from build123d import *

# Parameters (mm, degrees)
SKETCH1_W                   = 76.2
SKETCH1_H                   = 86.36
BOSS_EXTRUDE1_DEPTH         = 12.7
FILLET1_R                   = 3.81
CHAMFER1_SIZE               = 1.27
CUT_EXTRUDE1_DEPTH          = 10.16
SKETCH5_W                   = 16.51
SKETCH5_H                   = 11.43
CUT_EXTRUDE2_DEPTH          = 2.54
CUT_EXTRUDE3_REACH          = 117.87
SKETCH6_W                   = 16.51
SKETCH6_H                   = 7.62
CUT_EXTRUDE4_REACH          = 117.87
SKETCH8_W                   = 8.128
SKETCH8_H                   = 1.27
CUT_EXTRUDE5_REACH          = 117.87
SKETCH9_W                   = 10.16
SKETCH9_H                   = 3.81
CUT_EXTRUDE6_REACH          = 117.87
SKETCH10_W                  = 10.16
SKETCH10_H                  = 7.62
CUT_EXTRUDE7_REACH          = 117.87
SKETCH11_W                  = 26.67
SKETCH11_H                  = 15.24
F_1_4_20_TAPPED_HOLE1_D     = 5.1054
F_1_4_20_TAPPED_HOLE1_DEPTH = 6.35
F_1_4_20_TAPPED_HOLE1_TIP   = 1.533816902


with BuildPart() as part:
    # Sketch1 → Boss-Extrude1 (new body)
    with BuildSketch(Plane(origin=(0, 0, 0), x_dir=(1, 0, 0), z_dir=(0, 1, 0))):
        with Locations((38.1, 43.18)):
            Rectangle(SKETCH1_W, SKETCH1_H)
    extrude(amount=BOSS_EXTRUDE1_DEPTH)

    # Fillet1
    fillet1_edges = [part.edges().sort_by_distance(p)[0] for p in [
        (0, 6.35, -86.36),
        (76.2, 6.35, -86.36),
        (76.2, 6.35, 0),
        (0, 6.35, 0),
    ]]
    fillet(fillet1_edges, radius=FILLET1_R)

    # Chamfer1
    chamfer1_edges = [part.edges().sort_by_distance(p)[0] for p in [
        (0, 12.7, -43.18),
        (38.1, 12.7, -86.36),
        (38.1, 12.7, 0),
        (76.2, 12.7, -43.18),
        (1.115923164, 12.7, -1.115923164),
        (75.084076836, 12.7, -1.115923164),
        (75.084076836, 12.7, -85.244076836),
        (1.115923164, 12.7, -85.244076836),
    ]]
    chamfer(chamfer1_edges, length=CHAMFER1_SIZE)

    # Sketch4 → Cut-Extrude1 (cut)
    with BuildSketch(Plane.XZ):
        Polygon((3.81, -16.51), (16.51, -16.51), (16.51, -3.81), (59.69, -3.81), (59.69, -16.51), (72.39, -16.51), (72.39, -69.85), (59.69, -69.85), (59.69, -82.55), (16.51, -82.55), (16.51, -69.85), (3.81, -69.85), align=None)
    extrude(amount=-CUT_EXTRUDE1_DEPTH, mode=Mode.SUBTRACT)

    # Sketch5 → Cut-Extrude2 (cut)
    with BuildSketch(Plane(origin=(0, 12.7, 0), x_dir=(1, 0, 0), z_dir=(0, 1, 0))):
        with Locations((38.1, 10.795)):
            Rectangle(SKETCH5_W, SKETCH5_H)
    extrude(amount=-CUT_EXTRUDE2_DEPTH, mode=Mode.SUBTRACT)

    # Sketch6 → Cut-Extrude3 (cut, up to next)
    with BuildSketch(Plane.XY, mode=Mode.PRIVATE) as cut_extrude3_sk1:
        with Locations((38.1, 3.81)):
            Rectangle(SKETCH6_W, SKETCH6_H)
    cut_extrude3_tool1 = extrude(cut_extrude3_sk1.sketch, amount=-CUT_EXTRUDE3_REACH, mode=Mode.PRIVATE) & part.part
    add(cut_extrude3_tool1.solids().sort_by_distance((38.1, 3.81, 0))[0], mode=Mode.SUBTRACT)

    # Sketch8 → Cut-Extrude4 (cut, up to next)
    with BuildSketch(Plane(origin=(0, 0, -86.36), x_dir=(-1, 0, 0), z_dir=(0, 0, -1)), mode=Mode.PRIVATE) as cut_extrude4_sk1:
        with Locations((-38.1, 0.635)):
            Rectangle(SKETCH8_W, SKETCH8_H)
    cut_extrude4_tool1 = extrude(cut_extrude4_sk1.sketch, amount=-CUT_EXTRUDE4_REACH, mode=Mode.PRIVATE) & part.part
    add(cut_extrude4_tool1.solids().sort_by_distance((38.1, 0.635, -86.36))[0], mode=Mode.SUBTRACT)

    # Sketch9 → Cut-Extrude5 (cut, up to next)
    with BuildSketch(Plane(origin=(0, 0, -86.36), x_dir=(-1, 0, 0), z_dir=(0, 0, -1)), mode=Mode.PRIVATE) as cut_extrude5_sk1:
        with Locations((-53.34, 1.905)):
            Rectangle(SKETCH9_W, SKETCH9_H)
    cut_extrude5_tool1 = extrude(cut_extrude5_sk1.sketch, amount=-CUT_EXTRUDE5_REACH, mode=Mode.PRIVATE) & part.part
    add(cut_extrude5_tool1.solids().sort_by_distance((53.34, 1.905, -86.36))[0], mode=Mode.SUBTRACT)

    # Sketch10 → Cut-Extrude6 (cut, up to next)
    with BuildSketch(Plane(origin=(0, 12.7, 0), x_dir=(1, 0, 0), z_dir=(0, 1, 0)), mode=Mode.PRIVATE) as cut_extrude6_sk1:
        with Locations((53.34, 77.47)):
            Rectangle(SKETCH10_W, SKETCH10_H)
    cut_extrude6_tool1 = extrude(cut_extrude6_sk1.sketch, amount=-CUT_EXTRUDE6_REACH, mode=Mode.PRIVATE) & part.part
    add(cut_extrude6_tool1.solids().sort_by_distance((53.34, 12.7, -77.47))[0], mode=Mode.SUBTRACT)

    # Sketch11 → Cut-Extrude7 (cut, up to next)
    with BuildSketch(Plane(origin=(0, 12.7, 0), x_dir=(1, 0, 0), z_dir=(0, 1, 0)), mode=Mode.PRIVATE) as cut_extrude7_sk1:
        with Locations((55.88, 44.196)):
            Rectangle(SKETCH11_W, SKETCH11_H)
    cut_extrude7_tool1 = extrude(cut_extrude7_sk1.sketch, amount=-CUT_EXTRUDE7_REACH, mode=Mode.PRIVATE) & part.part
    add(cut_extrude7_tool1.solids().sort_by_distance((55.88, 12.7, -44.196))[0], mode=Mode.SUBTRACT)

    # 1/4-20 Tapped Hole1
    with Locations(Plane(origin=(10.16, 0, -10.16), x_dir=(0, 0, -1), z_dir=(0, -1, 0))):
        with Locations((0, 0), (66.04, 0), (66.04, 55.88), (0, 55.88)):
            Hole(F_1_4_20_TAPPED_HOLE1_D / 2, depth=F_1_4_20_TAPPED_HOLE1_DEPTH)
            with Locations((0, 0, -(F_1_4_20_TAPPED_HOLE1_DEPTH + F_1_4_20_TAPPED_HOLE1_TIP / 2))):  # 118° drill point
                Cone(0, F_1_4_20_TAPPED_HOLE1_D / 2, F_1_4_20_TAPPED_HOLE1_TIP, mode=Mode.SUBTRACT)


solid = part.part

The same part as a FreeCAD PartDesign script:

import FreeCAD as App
import Part
import Sketcher
Q = App.Units.Quantity


def edges_at(feature, points):
    """Names of the edges that pass closest to the given points."""
    edges = feature.Shape.Edges
    near = lambda p: min(range(len(edges)), key=lambda i: edges[i].distToShape(Part.Vertex(*p))[0])
    return sorted({f"Edge{near(p) + 1}" for p in points})


def add_polygon(sketch, points):
    """Adds a closed chain of lines whose ends are joined by coincident constraints."""
    first, n = sketch.GeometryCount, len(points)
    for a, b in zip(points, points[1:] + points[:1]):
        sketch.addGeometry(Part.LineSegment(App.Vector(*a, 0), App.Vector(*b, 0)), False)
    for i in range(n):
        sketch.addConstraint(Sketcher.Constraint("Coincident", first + i, 2, first + (i + 1) % n, 1))

doc = App.newDocument("Part")
params = doc.addObject("Spreadsheet::Sheet", "Params")
for row, (alias, value) in enumerate([
    ("sketch1_width", "3 in"),
    ("sketch1_height", "3.4 in"),
    ("pad1_length", "0.5 in"),
    ("fillet_radius", "0.15 in"),
    ("chamfer_size", "0.05 in"),
    ("sketch2_width", "0.5 in"),
    ("sketch2_width2", "1.7 in"),
    ("sketch2_height", "2.1 in"),
    ("pocket1_length", "0.4 in"),
    ("sketch3_width", "0.65 in"),
    ("sketch3_height", "0.45 in"),
    ("pocket2_length", "0.1 in"),
    ("sketch4_height", "0.3 in"),
    ("sketch4_width", "0.65 in"),
    ("sketch5_width", "0.32 in"),
    ("sketch5_height", "0.05 in"),
    ("sketch6_width", "0.4 in"),
    ("sketch6_height", "0.15 in"),
    ("sketch7_width", "0.4 in"),
    ("sketch7_height", "0.3 in"),
    ("sketch8_height", "0.6 in"),
    ("sketch8_width", "1.05 in"),
    ("sketch9_diameter", "0.201 in"),
    ("hole_diameter", "0.201 in"),
    ("hole_depth", "0.25 in"),
], start=1):
    params.set(f"A{row}", alias)
    params.set(f"B{row}", "=" + value)
    params.setAlias(f"B{row}", alias)

body = doc.addObject("PartDesign::Body", "Body")

# Sketch on XZ plane
sketch1 = body.newObject("Sketcher::SketchObject", "Sketch")
sketch1.AttachmentSupport = (doc.getObject("XZ_Plane"), [""])
sketch1.MapMode = "FlatFace"
add_polygon(sketch1, [(0, -86), (0, 0), (76, 0), (76, -86)])  # lines 0-3
sketch1.addConstraint([
    Sketcher.Constraint("Vertical", 0),
    Sketcher.Constraint("Horizontal", 1),
    Sketcher.Constraint("Vertical", 2),
    Sketcher.Constraint("Horizontal", 3),
    Sketcher.Constraint("Coincident", 0, 2, -1, 1),
    Sketcher.Constraint("DistanceX", 1, 1, 1, 2, Q("3 in")),
    Sketcher.Constraint("DistanceY", 0, 1, 0, 2, Q("3.4 in")),
])
sketch1.setExpression("Constraints[9]", "Params.sketch1_width")
sketch1.setExpression("Constraints[10]", "Params.sketch1_height")
pad1 = body.newObject("PartDesign::Pad", "Pad")
pad1.Profile = sketch1
pad1.setExpression("Length", "Params.pad1_length")
pad1.Reversed = True
doc.recompute()

fillet = body.newObject("PartDesign::Fillet", "Fillet")
fillet.Base = (pad1, edges_at(pad1, [
    (0, 6.35, -86.36),
    (76.2, 6.35, -86.36),
    (76.2, 6.35, 0),
    (0, 6.35, 0),
]))
fillet.setExpression("Radius", "Params.fillet_radius")
doc.recompute()

chamfer = body.newObject("PartDesign::Chamfer", "Chamfer")
chamfer.Base = (fillet, edges_at(fillet, [
    (0, 12.7, -43.18),
    (38.1, 12.7, -86.36),
    (38.1, 12.7, 0),
    (76.2, 12.7, -43.18),
    (1.116, 12.7, -1.116),
    (75.084, 12.7, -1.116),
    (75.084, 12.7, -85.244),
    (1.116, 12.7, -85.244),
]))
chamfer.setExpression("Size", "Params.chamfer_size")

# Sketch on XZ plane
sketch2 = body.newObject("Sketcher::SketchObject", "Sketch001")
sketch2.AttachmentSupport = (doc.getObject("XZ_Plane"), [""])
sketch2.MapMode = "FlatFace"
add_polygon(sketch2, [(17, -17), (4, -17), (4, -70), (17, -70), (17, -83), (60, -83), (60, -70), (72, -70), (72, -17), (60, -17), (60, -4), (17, -4)])  # lines 0-11
sketch2.addConstraint([
    Sketcher.Constraint("Horizontal", 0),
    Sketcher.Constraint("Vertical", 1),
    Sketcher.Constraint("Horizontal", 2),
    Sketcher.Constraint("Vertical", 3),
    Sketcher.Constraint("Horizontal", 4),
    Sketcher.Constraint("Vertical", 5),
    Sketcher.Constraint("Horizontal", 6),
    Sketcher.Constraint("Vertical", 7),
    Sketcher.Constraint("Horizontal", 8),
    Sketcher.Constraint("Vertical", 9),
    Sketcher.Constraint("Horizontal", 10),
    Sketcher.Constraint("Vertical", 11),
    Sketcher.Constraint("Horizontal", 2, 2, 5, 2),
    Sketcher.Constraint("Horizontal", 0, 2, 7, 2),
    Sketcher.Constraint("Vertical", 5, 2, 8, 2),
    Sketcher.Constraint("Vertical", 3, 2, 10, 2),
    Sketcher.Constraint("Equal", 2, 6),
    Sketcher.Constraint("Equal", 8, 3),
    Sketcher.Constraint("Equal", 5, 9),
    Sketcher.Constraint("DistanceX", 0, 2, 0, 1, Q("0.5 in")),
    Sketcher.Constraint("DistanceX", 4, 1, 4, 2, Q("1.7 in")),
    Sketcher.Constraint("DistanceY", 1, 2, 1, 1, Q("2.1 in")),
    Sketcher.Constraint("DistanceX", -1, 1, 0, 2, Q("0.15 in")),
    Sketcher.Constraint("DistanceY", 0, 2, -1, 1, Q("0.65 in")),
])
sketch2.setExpression("Constraints[31]", "Params.sketch2_width")
sketch2.setExpression("Constraints[32]", "Params.sketch2_width2")
sketch2.setExpression("Constraints[33]", "Params.sketch2_height")
pocket1 = body.newObject("PartDesign::Pocket", "Pocket")
pocket1.Profile = sketch2
pocket1.setExpression("Length", "Params.pocket1_length")

# Sketch on XZ plane
sketch3 = body.newObject("Sketcher::SketchObject", "Sketch002")
sketch3.AttachmentSupport = (doc.getObject("XZ_Plane"), [""])
sketch3.MapMode = "FlatFace"
sketch3.AttachmentOffset = App.Placement(App.Vector(0, 0, -0.5 * 25.4), App.Rotation())
add_polygon(sketch3, [(30, -17), (30, -5), (46, -5), (46, -17)])  # lines 0-3
sketch3.addConstraint([
    Sketcher.Constraint("Vertical", 0),
    Sketcher.Constraint("Horizontal", 1),
    Sketcher.Constraint("Vertical", 2),
    Sketcher.Constraint("Horizontal", 3),
    Sketcher.Constraint("DistanceX", 1, 1, 1, 2, Q("0.65 in")),
    Sketcher.Constraint("DistanceY", 0, 1, 0, 2, Q("0.45 in")),
    Sketcher.Constraint("DistanceY", 0, 2, -1, 1, Q("0.2 in")),
    Sketcher.Constraint("DistanceX", -1, 1, 0, 2, Q("1.175 in")),
])
sketch3.setExpression("Constraints[8]", "Params.sketch3_width")
sketch3.setExpression("Constraints[9]", "Params.sketch3_height")
pocket2 = body.newObject("PartDesign::Pocket", "Pocket001")
pocket2.Profile = sketch3
pocket2.setExpression("Length", "Params.pocket2_length")
pocket2.Reversed = True

# Sketch on XY plane
sketch4 = body.newObject("Sketcher::SketchObject", "Sketch003")
sketch4.AttachmentSupport = (doc.getObject("XY_Plane"), [""])
sketch4.MapMode = "FlatFace"
add_polygon(sketch4, [(30, 8), (30, 0), (46, 0), (46, 8)])  # lines 0-3
sketch4.addConstraint([
    Sketcher.Constraint("Vertical", 0),
    Sketcher.Constraint("Horizontal", 1),
    Sketcher.Constraint("Vertical", 2),
    Sketcher.Constraint("Horizontal", 3),
    Sketcher.Constraint("PointOnObject", 0, 2, -1),
    Sketcher.Constraint("DistanceY", 0, 2, 0, 1, Q("0.3 in")),
    Sketcher.Constraint("DistanceX", 1, 1, 1, 2, Q("0.65 in")),
    Sketcher.Constraint("DistanceX", -1, 1, 0, 2, Q("1.175 in")),
])
sketch4.setExpression("Constraints[9]", "Params.sketch4_height")
sketch4.setExpression("Constraints[10]", "Params.sketch4_width")
pocket3 = body.newObject("PartDesign::Pocket", "Pocket002")
pocket3.Profile = sketch4
pocket3.Type = "UpToFirst"

# Sketch on XY plane
sketch5 = body.newObject("Sketcher::SketchObject", "Sketch004")
sketch5.AttachmentSupport = (doc.getObject("XY_Plane"), [""])
sketch5.MapMode = "FlatFace"
sketch5.AttachmentOffset = App.Placement(App.Vector(0, 0, -3.4 * 25.4), App.Rotation())
add_polygon(sketch5, [(42.2, 1.3), (42.2, 0), (34, 0), (34, 1.3)])  # lines 0-3
sketch5.addConstraint([
    Sketcher.Constraint("Vertical", 0),
    Sketcher.Constraint("Horizontal", 1),
    Sketcher.Constraint("Vertical", 2),
    Sketcher.Constraint("Horizontal", 3),
    Sketcher.Constraint("PointOnObject", 0, 2, -1),
    Sketcher.Constraint("DistanceX", 1, 2, 1, 1, Q("0.32 in")),
    Sketcher.Constraint("DistanceY", 0, 2, 0, 1, Q("0.05 in")),
    Sketcher.Constraint("DistanceX", -1, 1, 0, 2, Q("1.66 in")),
])
sketch5.setExpression("Constraints[9]", "Params.sketch5_width")
sketch5.setExpression("Constraints[10]", "Params.sketch5_height")
pocket4 = body.newObject("PartDesign::Pocket", "Pocket003")
pocket4.Profile = sketch5
pocket4.Type = "UpToFirst"
pocket4.Reversed = True

# Sketch on XY plane
sketch6 = body.newObject("Sketcher::SketchObject", "Sketch005")
sketch6.AttachmentSupport = (doc.getObject("XY_Plane"), [""])
sketch6.MapMode = "FlatFace"
sketch6.AttachmentOffset = App.Placement(App.Vector(0, 0, -3.4 * 25.4), App.Rotation())
add_polygon(sketch6, [(58.4, 3.8), (58.4, 0), (48.3, 0), (48.3, 3.8)])  # lines 0-3
sketch6.addConstraint([
    Sketcher.Constraint("Vertical", 0),
    Sketcher.Constraint("Horizontal", 1),
    Sketcher.Constraint("Vertical", 2),
    Sketcher.Constraint("Horizontal", 3),
    Sketcher.Constraint("PointOnObject", 0, 2, -1),
    Sketcher.Constraint("DistanceX", 1, 2, 1, 1, Q("0.4 in")),
    Sketcher.Constraint("DistanceY", 0, 2, 0, 1, Q("0.15 in")),
    Sketcher.Constraint("DistanceX", -1, 1, 0, 2, Q("2.3 in")),
])
sketch6.setExpression("Constraints[9]", "Params.sketch6_width")
sketch6.setExpression("Constraints[10]", "Params.sketch6_height")
pocket5 = body.newObject("PartDesign::Pocket", "Pocket004")
pocket5.Profile = sketch6
pocket5.Type = "UpToFirst"
pocket5.Reversed = True

# Sketch on XZ plane
sketch7 = body.newObject("Sketcher::SketchObject", "Sketch006")
sketch7.AttachmentSupport = (doc.getObject("XZ_Plane"), [""])
sketch7.MapMode = "FlatFace"
sketch7.AttachmentOffset = App.Placement(App.Vector(0, 0, -0.5 * 25.4), App.Rotation())
add_polygon(sketch7, [(48, -81), (48, -74), (58, -74), (58, -81)])  # lines 0-3
sketch7.addConstraint([
    Sketcher.Constraint("Vertical", 0),
    Sketcher.Constraint("Horizontal", 1),
    Sketcher.Constraint("Vertical", 2),
    Sketcher.Constraint("Horizontal", 3),
    Sketcher.Constraint("DistanceX", 1, 1, 1, 2, Q("0.4 in")),
    Sketcher.Constraint("DistanceY", 0, 1, 0, 2, Q("0.3 in")),
    Sketcher.Constraint("DistanceX", -1, 1, 0, 2, Q("1.9 in")),
    Sketcher.Constraint("DistanceY", 0, 2, -1, 1, Q("2.9 in")),
])
sketch7.setExpression("Constraints[8]", "Params.sketch7_width")
sketch7.setExpression("Constraints[9]", "Params.sketch7_height")
pocket6 = body.newObject("PartDesign::Pocket", "Pocket005")
pocket6.Profile = sketch7
pocket6.Type = "UpToFirst"
pocket6.Reversed = True

# Sketch on XZ plane
sketch8 = body.newObject("Sketcher::SketchObject", "Sketch007")
sketch8.AttachmentSupport = (doc.getObject("XZ_Plane"), [""])
sketch8.MapMode = "FlatFace"
sketch8.AttachmentOffset = App.Placement(App.Vector(0, 0, -0.5 * 25.4), App.Rotation())
add_polygon(sketch8, [(43, -52), (43, -37), (69, -37), (69, -52)])  # lines 0-3
sketch8.addConstraint([
    Sketcher.Constraint("Vertical", 0),
    Sketcher.Constraint("Horizontal", 1),
    Sketcher.Constraint("Vertical", 2),
    Sketcher.Constraint("Horizontal", 3),
    Sketcher.Constraint("DistanceY", 0, 1, 0, 2, Q("0.6 in")),
    Sketcher.Constraint("DistanceX", 1, 1, 1, 2, Q("1.05 in")),
    Sketcher.Constraint("DistanceY", 0, 2, -1, 1, Q("1.44 in")),
    Sketcher.Constraint("DistanceX", -1, 1, 0, 2, Q("1.675 in")),
])
sketch8.setExpression("Constraints[8]", "Params.sketch8_height")
sketch8.setExpression("Constraints[9]", "Params.sketch8_width")
pocket7 = body.newObject("PartDesign::Pocket", "Pocket006")
pocket7.Profile = sketch8
pocket7.Type = "UpToFirst"
pocket7.Reversed = True

# Sketch on XZ plane
sketch9 = body.newObject("Sketcher::SketchObject", "Sketch008")
sketch9.AttachmentSupport = (doc.getObject("XZ_Plane"), [""])
sketch9.MapMode = "FlatFace"
sketch9.addGeometry([
    Part.Circle(App.Vector(10.2, -10.2, 0), App.Vector(0, 0, 1), 2.6),
    Part.Circle(App.Vector(10.2, -76.2, 0), App.Vector(0, 0, 1), 2.6),
    Part.Circle(App.Vector(66, -76.2, 0), App.Vector(0, 0, 1), 2.6),
    Part.Circle(App.Vector(66, -10.2, 0), App.Vector(0, 0, 1), 2.6),
], False)
sketch9.addConstraint([
    Sketcher.Constraint("Equal", 0, 1),
    Sketcher.Constraint("Equal", 1, 2),
    Sketcher.Constraint("Equal", 2, 3),
    Sketcher.Constraint("Horizontal", 1, 3, 2, 3),
    Sketcher.Constraint("Horizontal", 0, 3, 3, 3),
    Sketcher.Constraint("Vertical", 0, 3, 1, 3),
    Sketcher.Constraint("Vertical", 2, 3, 3, 3),
    Sketcher.Constraint("Diameter", 0, Q("0.201 in")),
    Sketcher.Constraint("DistanceY", 1, 3, -1, 1, Q("3 in")),
    Sketcher.Constraint("DistanceX", -1, 1, 0, 3, Q("0.4 in")),
    Sketcher.Constraint("DistanceY", 0, 3, -1, 1, Q("0.4 in")),
    Sketcher.Constraint("DistanceX", -1, 1, 2, 3, Q("2.6 in")),
])
sketch9.setExpression("Constraints[7]", "Params.sketch9_diameter")
doc.recompute()
hole = body.newObject("PartDesign::Hole", "Hole")
hole.Profile = sketch9
hole.ThreadType = "None"
hole.setExpression("Diameter", "Params.hole_diameter")
hole.DepthType = "Dimension"
hole.setExpression("Depth", "Params.hole_depth")
hole.DrillPoint = "Angled"
hole.DrillPointAngle = 118

doc.recompute()
